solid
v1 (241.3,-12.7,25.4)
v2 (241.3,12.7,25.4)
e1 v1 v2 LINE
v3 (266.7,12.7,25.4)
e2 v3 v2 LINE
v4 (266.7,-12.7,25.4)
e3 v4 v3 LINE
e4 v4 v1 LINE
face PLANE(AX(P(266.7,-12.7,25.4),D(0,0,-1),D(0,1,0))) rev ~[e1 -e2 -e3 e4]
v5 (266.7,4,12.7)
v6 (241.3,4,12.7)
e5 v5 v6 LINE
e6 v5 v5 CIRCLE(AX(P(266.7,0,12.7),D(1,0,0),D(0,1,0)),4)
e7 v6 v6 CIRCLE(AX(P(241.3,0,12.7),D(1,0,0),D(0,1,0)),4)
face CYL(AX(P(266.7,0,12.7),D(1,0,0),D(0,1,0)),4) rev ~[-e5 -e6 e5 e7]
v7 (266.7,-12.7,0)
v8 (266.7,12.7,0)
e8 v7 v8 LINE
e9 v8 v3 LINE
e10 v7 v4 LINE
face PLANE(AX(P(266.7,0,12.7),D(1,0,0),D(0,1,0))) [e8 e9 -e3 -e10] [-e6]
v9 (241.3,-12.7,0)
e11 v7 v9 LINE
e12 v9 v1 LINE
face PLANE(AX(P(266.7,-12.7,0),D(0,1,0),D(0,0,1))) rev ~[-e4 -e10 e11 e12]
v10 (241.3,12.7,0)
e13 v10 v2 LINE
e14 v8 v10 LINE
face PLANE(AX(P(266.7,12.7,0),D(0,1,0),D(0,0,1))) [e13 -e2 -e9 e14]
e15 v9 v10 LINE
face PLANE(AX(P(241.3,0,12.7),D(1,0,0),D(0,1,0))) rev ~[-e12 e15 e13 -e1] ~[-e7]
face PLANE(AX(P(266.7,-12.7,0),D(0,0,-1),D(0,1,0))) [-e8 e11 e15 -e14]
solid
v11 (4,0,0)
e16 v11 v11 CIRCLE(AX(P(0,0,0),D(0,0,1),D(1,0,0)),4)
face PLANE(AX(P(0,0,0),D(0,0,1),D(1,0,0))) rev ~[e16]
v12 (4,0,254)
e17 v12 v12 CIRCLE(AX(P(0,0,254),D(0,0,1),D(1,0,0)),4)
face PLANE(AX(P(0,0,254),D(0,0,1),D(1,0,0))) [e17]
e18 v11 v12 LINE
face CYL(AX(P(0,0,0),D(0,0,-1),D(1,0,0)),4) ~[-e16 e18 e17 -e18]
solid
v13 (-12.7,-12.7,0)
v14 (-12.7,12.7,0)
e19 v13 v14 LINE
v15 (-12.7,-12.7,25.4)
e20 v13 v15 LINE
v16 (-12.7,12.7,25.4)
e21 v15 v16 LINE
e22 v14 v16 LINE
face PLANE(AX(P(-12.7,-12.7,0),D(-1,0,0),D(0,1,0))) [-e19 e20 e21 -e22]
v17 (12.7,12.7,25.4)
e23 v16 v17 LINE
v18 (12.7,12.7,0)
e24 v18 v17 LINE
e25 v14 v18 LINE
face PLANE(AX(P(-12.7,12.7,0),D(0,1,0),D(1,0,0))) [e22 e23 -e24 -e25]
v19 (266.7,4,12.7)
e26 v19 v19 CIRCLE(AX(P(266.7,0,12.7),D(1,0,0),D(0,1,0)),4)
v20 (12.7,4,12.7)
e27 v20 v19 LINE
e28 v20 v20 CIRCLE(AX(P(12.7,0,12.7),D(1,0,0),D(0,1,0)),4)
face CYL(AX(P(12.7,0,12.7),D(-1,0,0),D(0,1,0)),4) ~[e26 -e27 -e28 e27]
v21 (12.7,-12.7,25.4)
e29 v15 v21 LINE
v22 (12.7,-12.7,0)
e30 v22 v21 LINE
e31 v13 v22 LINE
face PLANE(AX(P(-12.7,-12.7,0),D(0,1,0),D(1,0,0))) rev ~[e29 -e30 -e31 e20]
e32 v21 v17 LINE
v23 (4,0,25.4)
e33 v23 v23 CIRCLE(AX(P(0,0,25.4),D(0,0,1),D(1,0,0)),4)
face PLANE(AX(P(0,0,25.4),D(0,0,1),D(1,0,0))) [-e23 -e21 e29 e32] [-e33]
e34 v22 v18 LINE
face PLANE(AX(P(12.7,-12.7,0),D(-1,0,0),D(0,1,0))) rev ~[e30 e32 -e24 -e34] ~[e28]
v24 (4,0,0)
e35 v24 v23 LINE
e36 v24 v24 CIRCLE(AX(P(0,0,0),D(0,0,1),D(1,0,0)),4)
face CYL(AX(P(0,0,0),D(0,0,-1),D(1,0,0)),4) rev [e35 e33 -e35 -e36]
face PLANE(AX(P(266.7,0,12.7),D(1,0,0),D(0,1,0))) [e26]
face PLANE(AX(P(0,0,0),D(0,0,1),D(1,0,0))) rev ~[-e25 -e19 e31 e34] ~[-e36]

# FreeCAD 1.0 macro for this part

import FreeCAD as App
import Part
import Sketcher
Q = App.Units.Quantity


def add_polygon(sketch, points):
    """Adds a closed chain of lines whose ends are joined by coincident constraints."""
    first, n = sketch.GeometryCount, len(points)
    for a, b in zip(points, points[1:] + points[:1]):
        sketch.addGeometry(Part.LineSegment(App.Vector(*a, 0), App.Vector(*b, 0)), False)
    for i in range(n):
        sketch.addConstraint(Sketcher.Constraint("Coincident", first + i, 2, first + (i + 1) % n, 1))

doc = App.newDocument("Part")
body = doc.addObject("PartDesign::Body", "Body")

sketch1 = body.newObject("Sketcher::SketchObject", "Sketch")
sketch1.AttachmentSupport = (doc.getObject("XY_Plane"), [""])
sketch1.MapMode = "FlatFace"
sketch1.addGeometry(Part.Circle(App.Vector(0, 0, 0), App.Vector(0, 0, 1), 4), False)
sketch1.addConstraint(Sketcher.Constraint("Coincident", 0, 3, -1, 1))
sketch1.addConstraint(Sketcher.Constraint("Diameter", 0, 8.0))
pad1 = body.newObject("PartDesign::Pad", "Pad")
pad1.Profile = sketch1
pad1.Length = Q("10 in")
body2 = doc.addObject("PartDesign::Body", "Body001")

sketch2 = body2.newObject("Sketcher::SketchObject", "Sketch001")
sketch2.AttachmentSupport = (doc.getObject("XY_Plane001"), [""])
sketch2.MapMode = "FlatFace"
add_polygon(sketch2, [(-12.7, 12.7), (-12.7, -12.7), (12.7, -12.7), (12.7, 12.7)])
sketch2.addGeometry(Part.Circle(App.Vector(0, 0, 0), App.Vector(0, 0, 1), 4), False)
sketch2.addConstraint(Sketcher.Constraint("Vertical", 0))
sketch2.addConstraint(Sketcher.Constraint("Horizontal", 1))
sketch2.addConstraint(Sketcher.Constraint("Vertical", 2))
sketch2.addConstraint(Sketcher.Constraint("Horizontal", 3))
sketch2.addConstraint(Sketcher.Constraint("Coincident", 4, 3, -1, 1))
sketch2.addConstraint(Sketcher.Constraint("Symmetric", 0, 2, 2, 2, -1, 1))
sketch2.addConstraint(Sketcher.Constraint("Equal", 3, 0))
sketch2.addConstraint(Sketcher.Constraint("DistanceX", 1, 1, 1, 2, Q("1 in")))
sketch2.addConstraint(Sketcher.Constraint("Diameter", 4, 8.0))
pad2 = body2.newObject("PartDesign::Pad", "Pad001")
pad2.Profile = sketch2
pad2.Length = Q("1 in")

sketch3 = body2.newObject("Sketcher::SketchObject", "Sketch002")
sketch3.AttachmentSupport = (doc.getObject("YZ_Plane001"), [""])
sketch3.MapMode = "FlatFace"
sketch3.AttachmentOffset = App.Placement(App.Vector(0, 0, 0.5 * 25.4), App.Rotation())
sketch3.addGeometry(Part.Circle(App.Vector(0, 12.7, 0), App.Vector(0, 0, 1), 4), False)
sketch3.addConstraint(Sketcher.Constraint("PointOnObject", 0, 3, -2))
sketch3.addConstraint(Sketcher.Constraint("DistanceY", -1, 1, 0, 3, Q("0.5 in")))
sketch3.addConstraint(Sketcher.Constraint("Diameter", 0, 8.0))
pad3 = body2.newObject("PartDesign::Pad", "Pad002")
pad3.Profile = sketch3
pad3.Length = Q("10 in")
body3 = doc.addObject("PartDesign::Body", "Body002")

sketch4 = body3.newObject("Sketcher::SketchObject", "Sketch003")
sketch4.AttachmentSupport = (doc.getObject("YZ_Plane002"), [""])
sketch4.MapMode = "FlatFace"
sketch4.AttachmentOffset = App.Placement(App.Vector(0, 0, 10.5 * 25.4), App.Rotation())
add_polygon(sketch4, [(-12.7, 25.4), (-12.7, 0), (12.7, 0), (12.7, 25.4)])
sketch4.addGeometry(Part.Circle(App.Vector(0, 12.7, 0), App.Vector(0, 0, 1), 4), False)
sketch4.addConstraint(Sketcher.Constraint("Vertical", 0))
sketch4.addConstraint(Sketcher.Constraint("Horizontal", 1))
sketch4.addConstraint(Sketcher.Constraint("Vertical", 2))
sketch4.addConstraint(Sketcher.Constraint("Horizontal", 3))
sketch4.addConstraint(Sketcher.Constraint("Symmetric", 0, 2, 1, 2, -1, 1))
sketch4.addConstraint(Sketcher.Constraint("PointOnObject", 4, 3, -2))
sketch4.addConstraint(Sketcher.Constraint("Equal", 3, 0))
sketch4.addConstraint(Sketcher.Constraint("DistanceX", 1, 1, 1, 2, Q("1 in")))
sketch4.addConstraint(Sketcher.Constraint("DistanceY", -1, 1, 4, 3, Q("0.5 in")))
sketch4.addConstraint(Sketcher.Constraint("Diameter", 4, 8.0))
pad4 = body3.newObject("PartDesign::Pad", "Pad003")
pad4.Profile = sketch4
pad4.Length = Q("1 in")
pad4.Reversed = True

doc.recompute()
